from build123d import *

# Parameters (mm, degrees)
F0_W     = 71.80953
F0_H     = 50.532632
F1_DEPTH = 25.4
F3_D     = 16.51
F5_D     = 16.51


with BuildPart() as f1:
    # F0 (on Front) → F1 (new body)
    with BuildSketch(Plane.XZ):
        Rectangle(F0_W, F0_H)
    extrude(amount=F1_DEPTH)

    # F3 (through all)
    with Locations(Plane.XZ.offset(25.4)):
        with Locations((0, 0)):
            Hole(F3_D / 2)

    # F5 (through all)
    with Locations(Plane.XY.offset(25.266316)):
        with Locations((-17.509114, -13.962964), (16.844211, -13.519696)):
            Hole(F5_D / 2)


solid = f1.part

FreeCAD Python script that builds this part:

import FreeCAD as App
import Part
import Sketcher
from FreeCAD import Vector
Q = App.Units.Quantity


def add_polygon(sketch, points):
    """Adds a closed chain of lines whose ends are joined by coincident constraints."""
    first, n = sketch.GeometryCount, len(points)
    for a, b in zip(points, points[1:] + points[:1]):
        sketch.addGeometry(Part.LineSegment(App.Vector(*a, 0), App.Vector(*b, 0)), False)
    for i in range(n):
        sketch.addConstraint(Sketcher.Constraint("Coincident", first + i, 2, first + (i + 1) % n, 1))

doc = App.newDocument("Part")
params = doc.addObject("Spreadsheet::Sheet", "Params")
for row, (alias, value) in enumerate([
    ("pad1_length", "1 in"),
    ("sketch2_diameter", "0.65 in"),
    ("hole_diameter", "0.65 in"),
    ("sketch3_diameter", "0.65 in"),
    ("hole2_diameter", "0.65 in"),
], start=1):
    params.set(f"A{row}", alias)
    params.set(f"B{row}", "=" + value)
    params.setAlias(f"B{row}", alias)

body = doc.addObject("PartDesign::Body", "Body")

sketch1 = doc.addObject("Sketcher::SketchObject", "Sketch")
body.addObject(sketch1)
sketch1.AttachmentSupport = (doc.XZ_Plane, [""])
sketch1.MapMode = "FlatFace"
add_polygon(sketch1, [(-36, 25), (-36, -25), (36, -25), (36, 25)])
sketch1.addConstraint(Sketcher.Constraint("Vertical", 0))
sketch1.addConstraint(Sketcher.Constraint("Horizontal", 1))
sketch1.addConstraint(Sketcher.Constraint("Vertical", 2))
sketch1.addConstraint(Sketcher.Constraint("Horizontal", 3))
sketch1.addConstraint(Sketcher.Constraint("Symmetric", 0, 2, 2, 2, -1, 1))
sketch1.addConstraint(Sketcher.Constraint("DistanceX", 1, 1, 1, 2, 71.80953))
sketch1.addConstraint(Sketcher.Constraint("DistanceY", 0, 2, 0, 1, 50.532632))
pad1 = doc.addObject("PartDesign::Pad", "Pad")
body.addObject(pad1)
pad1.Profile = sketch1
pad1.setExpression("Length", "Params.pad1_length")

sketch2 = doc.addObject("Sketcher::SketchObject", "Sketch001")
body.addObject(sketch2)
sketch2.AttachmentSupport = (doc.XZ_Plane, [""])
sketch2.MapMode = "FlatFace"
sketch2.AttachmentOffset = App.Placement(Vector(0, 0, 1 * 25.4), App.Rotation())
sketch2.addGeometry(Part.Circle(Vector(0, 0, 0), Vector(0, 0, 1), 8), False)
sketch2.addConstraint(Sketcher.Constraint("Coincident", 0, 3, -1, 1))
sketch2.addConstraint(Sketcher.Constraint("Diameter", 0, Q("0.65 in")))
sketch2.setExpression("Constraints[1]", "Params.sketch2_diameter")
doc.recompute()
hole = doc.addObject("PartDesign::Hole", "Hole")
body.addObject(hole)
hole.Profile = sketch2
hole.ThreadType = "None"
hole.setExpression("Diameter", "Params.hole_diameter")
hole.DepthType = "ThroughAll"

sketch3 = doc.addObject("Sketcher::SketchObject", "Sketch002")
body.addObject(sketch3)
sketch3.AttachmentSupport = (doc.XY_Plane, [""])
sketch3.MapMode = "FlatFace"
sketch3.AttachmentOffset = App.Placement(Vector(0, 0, 25.266316), App.Rotation())
sketch3.addGeometry(Part.Circle(Vector(-18, -14, 0), Vector(0, 0, 1), 8), False)
sketch3.addGeometry(Part.Circle(Vector(17, -14, 0), Vector(0, 0, 1), 8), False)
sketch3.addConstraint(Sketcher.Constraint("Equal", 0, 1))
sketch3.addConstraint(Sketcher.Constraint("Diameter", 0, Q("0.65 in")))
sketch3.addConstraint(Sketcher.Constraint("DistanceX", -1, 1, 1, 3, 16.844211))
sketch3.addConstraint(Sketcher.Constraint("DistanceX", 0, 3, -1, 1, 17.509114))
sketch3.addConstraint(Sketcher.Constraint("DistanceY", 0, 3, -1, 1, 13.962964))
sketch3.addConstraint(Sketcher.Constraint("DistanceY", 1, 3, -1, 1, 13.519696))
sketch3.setExpression("Constraints[1]", "Params.sketch3_diameter")
doc.recompute()
hole2 = doc.addObject("PartDesign::Hole", "Hole001")
body.addObject(hole2)
hole2.Profile = sketch3
hole2.ThreadType = "None"
hole2.setExpression("Diameter", "Params.hole2_diameter")
hole2.DepthType = "ThroughAll"

doc.recompute()
